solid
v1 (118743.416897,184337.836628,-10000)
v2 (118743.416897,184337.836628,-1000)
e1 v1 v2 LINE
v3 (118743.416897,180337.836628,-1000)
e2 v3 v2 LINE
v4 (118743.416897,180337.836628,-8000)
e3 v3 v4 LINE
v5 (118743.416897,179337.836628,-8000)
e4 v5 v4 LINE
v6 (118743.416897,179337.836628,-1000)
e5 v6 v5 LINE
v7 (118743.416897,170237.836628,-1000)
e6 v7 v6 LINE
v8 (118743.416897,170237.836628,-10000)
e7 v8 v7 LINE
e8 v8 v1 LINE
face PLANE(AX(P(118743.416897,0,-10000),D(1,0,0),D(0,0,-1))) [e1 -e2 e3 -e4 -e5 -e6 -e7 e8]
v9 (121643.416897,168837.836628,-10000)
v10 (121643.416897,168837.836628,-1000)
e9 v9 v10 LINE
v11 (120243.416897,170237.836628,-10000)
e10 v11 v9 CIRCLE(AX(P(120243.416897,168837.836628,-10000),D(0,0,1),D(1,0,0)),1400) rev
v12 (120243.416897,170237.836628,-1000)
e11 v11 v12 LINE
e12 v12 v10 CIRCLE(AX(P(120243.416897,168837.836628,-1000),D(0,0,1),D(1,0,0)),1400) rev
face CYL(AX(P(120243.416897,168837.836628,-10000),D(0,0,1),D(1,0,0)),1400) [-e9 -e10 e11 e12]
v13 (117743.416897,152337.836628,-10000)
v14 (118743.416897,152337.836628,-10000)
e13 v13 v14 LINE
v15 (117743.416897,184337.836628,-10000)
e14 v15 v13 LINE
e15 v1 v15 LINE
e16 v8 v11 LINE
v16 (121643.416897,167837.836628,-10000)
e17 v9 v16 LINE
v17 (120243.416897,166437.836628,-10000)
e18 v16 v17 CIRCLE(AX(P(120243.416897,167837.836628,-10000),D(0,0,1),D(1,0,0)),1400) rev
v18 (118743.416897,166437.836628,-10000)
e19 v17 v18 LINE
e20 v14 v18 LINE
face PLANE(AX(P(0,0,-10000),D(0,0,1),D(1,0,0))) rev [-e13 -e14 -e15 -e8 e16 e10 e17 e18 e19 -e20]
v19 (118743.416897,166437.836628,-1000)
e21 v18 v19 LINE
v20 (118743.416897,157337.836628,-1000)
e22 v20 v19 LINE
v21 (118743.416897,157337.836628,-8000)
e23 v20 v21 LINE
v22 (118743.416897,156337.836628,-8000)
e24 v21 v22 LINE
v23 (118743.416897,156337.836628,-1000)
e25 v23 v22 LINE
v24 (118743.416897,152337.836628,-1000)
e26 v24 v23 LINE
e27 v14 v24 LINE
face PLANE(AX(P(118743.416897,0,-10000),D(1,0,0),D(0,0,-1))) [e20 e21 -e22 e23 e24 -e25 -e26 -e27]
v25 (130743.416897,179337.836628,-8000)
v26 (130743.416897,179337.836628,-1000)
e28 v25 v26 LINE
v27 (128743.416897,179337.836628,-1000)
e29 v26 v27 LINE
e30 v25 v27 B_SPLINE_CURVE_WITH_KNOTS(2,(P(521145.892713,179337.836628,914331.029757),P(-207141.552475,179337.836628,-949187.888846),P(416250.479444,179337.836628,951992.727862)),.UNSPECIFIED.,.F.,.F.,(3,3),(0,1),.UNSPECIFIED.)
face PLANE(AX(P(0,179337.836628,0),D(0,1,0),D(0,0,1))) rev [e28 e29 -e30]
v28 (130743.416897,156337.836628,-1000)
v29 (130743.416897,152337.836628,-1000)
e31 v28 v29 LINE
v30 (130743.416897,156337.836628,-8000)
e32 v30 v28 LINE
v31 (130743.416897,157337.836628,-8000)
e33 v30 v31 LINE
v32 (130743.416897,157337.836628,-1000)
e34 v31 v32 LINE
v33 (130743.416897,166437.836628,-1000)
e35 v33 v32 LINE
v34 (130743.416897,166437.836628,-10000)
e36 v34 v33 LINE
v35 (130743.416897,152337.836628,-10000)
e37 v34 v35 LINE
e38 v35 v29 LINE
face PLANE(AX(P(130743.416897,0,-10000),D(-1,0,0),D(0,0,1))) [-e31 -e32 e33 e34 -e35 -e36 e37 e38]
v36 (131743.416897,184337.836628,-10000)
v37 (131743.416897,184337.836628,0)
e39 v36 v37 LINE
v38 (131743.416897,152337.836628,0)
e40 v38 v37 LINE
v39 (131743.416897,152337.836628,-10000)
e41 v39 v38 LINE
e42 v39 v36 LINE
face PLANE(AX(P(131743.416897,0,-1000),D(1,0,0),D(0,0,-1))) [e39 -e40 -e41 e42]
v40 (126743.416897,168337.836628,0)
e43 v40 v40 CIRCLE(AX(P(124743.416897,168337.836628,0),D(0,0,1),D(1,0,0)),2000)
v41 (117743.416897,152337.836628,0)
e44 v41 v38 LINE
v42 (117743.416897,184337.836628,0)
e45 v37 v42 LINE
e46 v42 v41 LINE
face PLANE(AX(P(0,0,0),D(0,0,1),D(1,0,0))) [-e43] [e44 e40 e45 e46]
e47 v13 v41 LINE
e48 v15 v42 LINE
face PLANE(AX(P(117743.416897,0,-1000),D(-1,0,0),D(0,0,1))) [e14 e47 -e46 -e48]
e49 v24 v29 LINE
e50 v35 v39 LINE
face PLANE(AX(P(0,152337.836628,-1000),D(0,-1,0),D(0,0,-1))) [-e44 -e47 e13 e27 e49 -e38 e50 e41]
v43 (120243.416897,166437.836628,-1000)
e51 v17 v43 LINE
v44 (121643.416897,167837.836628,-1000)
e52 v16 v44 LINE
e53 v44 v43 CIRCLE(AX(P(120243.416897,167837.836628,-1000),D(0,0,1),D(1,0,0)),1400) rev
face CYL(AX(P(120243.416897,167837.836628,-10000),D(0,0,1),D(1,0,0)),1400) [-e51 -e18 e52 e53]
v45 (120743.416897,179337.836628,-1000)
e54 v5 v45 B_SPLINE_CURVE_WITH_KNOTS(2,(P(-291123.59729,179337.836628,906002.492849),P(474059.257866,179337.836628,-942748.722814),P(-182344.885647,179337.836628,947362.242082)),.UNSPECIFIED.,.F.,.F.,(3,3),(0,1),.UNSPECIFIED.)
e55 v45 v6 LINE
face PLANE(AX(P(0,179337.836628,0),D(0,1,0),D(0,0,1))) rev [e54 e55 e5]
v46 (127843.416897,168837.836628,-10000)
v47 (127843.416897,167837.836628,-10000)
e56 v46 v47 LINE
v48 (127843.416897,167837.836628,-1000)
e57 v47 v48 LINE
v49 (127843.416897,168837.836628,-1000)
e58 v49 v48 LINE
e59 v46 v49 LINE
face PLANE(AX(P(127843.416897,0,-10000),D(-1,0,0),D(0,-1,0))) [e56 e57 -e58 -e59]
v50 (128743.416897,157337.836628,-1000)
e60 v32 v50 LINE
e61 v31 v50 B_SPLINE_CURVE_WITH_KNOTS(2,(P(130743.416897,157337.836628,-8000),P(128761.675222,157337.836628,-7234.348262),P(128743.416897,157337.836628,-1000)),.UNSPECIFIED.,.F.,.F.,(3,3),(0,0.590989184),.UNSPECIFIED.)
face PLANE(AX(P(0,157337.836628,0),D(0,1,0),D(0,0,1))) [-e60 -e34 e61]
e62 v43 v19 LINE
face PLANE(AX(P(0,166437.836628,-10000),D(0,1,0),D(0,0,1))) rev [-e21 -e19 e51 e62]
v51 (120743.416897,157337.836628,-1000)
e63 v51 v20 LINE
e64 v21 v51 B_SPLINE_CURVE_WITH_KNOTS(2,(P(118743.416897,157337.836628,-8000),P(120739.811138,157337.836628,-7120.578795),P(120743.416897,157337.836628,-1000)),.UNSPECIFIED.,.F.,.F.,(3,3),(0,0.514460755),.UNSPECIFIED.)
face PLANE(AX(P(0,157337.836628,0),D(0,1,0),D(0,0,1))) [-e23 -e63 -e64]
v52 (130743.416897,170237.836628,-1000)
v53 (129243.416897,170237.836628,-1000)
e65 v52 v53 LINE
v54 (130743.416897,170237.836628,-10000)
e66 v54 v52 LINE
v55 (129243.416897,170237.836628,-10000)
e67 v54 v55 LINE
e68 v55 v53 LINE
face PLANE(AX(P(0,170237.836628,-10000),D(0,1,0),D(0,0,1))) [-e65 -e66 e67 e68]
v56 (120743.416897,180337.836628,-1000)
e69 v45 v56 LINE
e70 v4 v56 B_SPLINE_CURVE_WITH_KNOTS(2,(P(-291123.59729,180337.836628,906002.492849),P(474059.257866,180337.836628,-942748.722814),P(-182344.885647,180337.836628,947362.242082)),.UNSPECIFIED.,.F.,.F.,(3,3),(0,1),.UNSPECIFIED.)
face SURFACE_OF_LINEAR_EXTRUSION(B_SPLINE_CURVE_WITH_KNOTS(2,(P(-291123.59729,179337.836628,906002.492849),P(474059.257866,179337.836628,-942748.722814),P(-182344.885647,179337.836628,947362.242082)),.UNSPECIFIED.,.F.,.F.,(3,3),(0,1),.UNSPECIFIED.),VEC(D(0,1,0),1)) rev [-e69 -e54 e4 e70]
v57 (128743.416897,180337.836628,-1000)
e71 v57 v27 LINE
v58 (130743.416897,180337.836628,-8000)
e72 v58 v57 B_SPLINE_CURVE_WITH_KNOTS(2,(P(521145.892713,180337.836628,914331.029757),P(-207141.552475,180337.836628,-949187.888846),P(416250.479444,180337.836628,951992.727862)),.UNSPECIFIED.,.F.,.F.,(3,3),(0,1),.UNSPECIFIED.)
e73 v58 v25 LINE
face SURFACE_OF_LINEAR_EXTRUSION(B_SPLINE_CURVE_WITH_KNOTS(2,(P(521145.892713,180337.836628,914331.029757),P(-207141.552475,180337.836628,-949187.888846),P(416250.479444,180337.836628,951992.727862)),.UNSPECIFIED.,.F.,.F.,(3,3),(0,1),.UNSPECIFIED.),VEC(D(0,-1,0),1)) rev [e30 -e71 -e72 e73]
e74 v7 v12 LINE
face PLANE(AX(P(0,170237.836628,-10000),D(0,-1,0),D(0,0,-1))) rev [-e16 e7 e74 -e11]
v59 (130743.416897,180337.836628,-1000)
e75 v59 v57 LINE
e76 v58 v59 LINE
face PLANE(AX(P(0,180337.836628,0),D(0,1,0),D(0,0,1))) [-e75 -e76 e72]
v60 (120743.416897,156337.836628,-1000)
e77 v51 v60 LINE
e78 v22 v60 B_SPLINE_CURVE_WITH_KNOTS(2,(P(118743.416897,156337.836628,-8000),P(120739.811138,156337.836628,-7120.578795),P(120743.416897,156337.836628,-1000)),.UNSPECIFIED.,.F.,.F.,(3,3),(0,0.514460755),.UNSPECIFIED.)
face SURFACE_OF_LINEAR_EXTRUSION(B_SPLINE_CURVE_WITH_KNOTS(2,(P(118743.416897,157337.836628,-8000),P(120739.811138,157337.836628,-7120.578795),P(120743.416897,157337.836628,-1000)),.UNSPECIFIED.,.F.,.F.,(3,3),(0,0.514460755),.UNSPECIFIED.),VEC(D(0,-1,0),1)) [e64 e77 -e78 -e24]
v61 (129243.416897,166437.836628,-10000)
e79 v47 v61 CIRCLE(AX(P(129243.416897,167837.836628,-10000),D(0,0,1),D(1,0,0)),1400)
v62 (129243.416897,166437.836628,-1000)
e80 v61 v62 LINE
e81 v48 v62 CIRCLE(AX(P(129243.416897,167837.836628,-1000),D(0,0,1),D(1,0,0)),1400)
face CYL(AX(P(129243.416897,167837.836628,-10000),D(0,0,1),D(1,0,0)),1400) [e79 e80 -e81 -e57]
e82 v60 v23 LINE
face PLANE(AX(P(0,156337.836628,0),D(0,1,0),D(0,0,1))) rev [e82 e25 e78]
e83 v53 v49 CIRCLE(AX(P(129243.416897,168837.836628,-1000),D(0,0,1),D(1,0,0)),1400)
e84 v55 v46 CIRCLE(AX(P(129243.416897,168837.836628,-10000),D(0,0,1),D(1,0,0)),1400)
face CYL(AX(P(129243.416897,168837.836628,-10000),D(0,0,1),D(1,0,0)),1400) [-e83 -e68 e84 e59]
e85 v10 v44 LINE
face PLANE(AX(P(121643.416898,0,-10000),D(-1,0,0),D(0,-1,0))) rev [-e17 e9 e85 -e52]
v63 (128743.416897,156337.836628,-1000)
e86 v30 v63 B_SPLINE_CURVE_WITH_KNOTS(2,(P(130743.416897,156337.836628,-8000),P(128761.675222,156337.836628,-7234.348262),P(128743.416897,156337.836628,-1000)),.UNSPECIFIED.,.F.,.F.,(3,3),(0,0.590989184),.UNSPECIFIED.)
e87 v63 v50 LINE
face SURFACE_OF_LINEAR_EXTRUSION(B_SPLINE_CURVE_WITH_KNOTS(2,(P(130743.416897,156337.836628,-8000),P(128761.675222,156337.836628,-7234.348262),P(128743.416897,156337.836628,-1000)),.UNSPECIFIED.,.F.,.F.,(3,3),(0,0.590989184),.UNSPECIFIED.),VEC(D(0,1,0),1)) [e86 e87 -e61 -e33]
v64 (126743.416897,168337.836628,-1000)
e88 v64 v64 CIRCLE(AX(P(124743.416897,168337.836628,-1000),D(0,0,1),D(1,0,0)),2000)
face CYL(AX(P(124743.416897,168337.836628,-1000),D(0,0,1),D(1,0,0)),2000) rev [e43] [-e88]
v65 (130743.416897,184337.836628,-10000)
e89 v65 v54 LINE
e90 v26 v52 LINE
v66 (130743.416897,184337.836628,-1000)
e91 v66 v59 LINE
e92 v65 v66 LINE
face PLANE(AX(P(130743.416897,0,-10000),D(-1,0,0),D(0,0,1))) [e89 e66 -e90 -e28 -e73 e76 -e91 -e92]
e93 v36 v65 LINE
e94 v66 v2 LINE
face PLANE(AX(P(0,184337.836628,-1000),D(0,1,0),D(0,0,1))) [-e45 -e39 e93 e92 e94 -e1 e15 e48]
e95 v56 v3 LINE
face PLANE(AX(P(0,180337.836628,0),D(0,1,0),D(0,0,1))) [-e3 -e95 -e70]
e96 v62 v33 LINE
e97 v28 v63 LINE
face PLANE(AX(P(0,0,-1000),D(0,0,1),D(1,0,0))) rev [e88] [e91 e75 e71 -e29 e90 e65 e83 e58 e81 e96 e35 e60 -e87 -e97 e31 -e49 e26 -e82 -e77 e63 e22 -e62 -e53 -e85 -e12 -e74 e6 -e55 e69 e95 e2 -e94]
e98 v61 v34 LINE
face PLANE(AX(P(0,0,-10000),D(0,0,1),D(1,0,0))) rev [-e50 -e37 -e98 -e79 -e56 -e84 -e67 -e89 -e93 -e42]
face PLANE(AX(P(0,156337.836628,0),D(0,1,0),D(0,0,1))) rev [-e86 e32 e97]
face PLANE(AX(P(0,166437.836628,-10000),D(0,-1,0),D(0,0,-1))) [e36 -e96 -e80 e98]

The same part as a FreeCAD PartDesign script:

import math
import FreeCAD as App
import Part
import Sketcher

V = App.Vector

doc = App.newDocument("Part")
body = doc.addObject("PartDesign::Body", "Body")

# Sketch on XY plane
sketch1 = doc.addObject("Sketcher::SketchObject", "Sketch")
body.addObject(sketch1)
sketch1.AttachmentSupport = (doc.XY_Plane, [""])
sketch1.MapMode = "FlatFace"
sketch1.addGeometry([
    Part.LineSegment(V(117743.416897, 184337.836628, 0), V(117743.416897, 152337.836628, 0)),  # 0
    Part.LineSegment(V(117743.416897, 152337.836628, 0), V(131743.416897, 152337.836628, 0)),  # 1
    Part.LineSegment(V(131743.416897, 152337.836628, 0), V(131743.416897, 184337.836628, 0)),  # 2
    Part.LineSegment(V(131743.416897, 184337.836628, 0), V(117743.416897, 184337.836628, 0)),  # 3
    Part.Circle(V(124743.416897, 168337.836628, 0), V(0, 0, 1), 2000),  # 4
], False)
sketch1.addConstraint([
    Sketcher.Constraint("Coincident", 0, 2, 1, 1),
    Sketcher.Constraint("Coincident", 1, 2, 2, 1),
    Sketcher.Constraint("Coincident", 2, 2, 3, 1),
    Sketcher.Constraint("Coincident", 3, 2, 0, 1),
    Sketcher.Constraint("Vertical", 0),
    Sketcher.Constraint("Horizontal", 1),
    Sketcher.Constraint("Vertical", 2),
    Sketcher.Constraint("Horizontal", 3),
    Sketcher.Constraint("Diameter", 4, 4000.0),
    Sketcher.Constraint("DistanceX", 1, 1, 1, 2, 14000.0),
    Sketcher.Constraint("DistanceY", 0, 2, 0, 1, 32000.0),
    Sketcher.Constraint("DistanceX", 0, 2, 4, 3, 7000.0),
    Sketcher.Constraint("DistanceY", 0, 2, 4, 3, 16000.0),
    Sketcher.Constraint("DistanceX", -1, 1, 4, 3, 124743.416897),
    Sketcher.Constraint("DistanceY", -1, 1, 4, 3, 168337.836628),
])
pad1 = doc.addObject("PartDesign::Pad", "Pad")
body.addObject(pad1)
pad1.Profile = sketch1
pad1.Length = 1000
pad1.Reversed = True

# Sketch on XY plane
sketch2 = doc.addObject("Sketcher::SketchObject", "Sketch001")
body.addObject(sketch2)
sketch2.AttachmentSupport = (doc.XY_Plane, [""])
sketch2.MapMode = "FlatFace"
sketch2.addGeometry([
    Part.LineSegment(V(117743.416897, 152337.836628, 0), V(118743.416897, 152337.836628, 0)),  # 0
    Part.LineSegment(V(118743.416897, 152337.836628, 0), V(118743.416897, 166437.836628, 0)),  # 1
    Part.LineSegment(V(118743.416897, 166437.836628, 0), V(120243.416897, 166437.836628, 0)),  # 2
    Part.ArcOfCircle(Part.Circle(V(120243.416897, 167837.836628, 0), V(0, 0, 1), 1400), math.radians(-90), math.radians(0)),  # 3
    Part.LineSegment(V(121643.416897, 167837.836628, 0), V(121643.416897, 168837.836628, 0)),  # 4
    Part.ArcOfCircle(Part.Circle(V(120243.416897, 168837.836628, 0), V(0, 0, 1), 1400), math.radians(0), math.radians(90)),  # 5
    Part.LineSegment(V(120243.416897, 170237.836628, 0), V(118743.416897, 170237.836628, 0)),  # 6
    Part.LineSegment(V(118743.416897, 170237.836628, 0), V(118743.416897, 184337.836628, 0)),  # 7
    Part.LineSegment(V(118743.416897, 184337.836628, 0), V(117743.416897, 184337.836628, 0)),  # 8
    Part.LineSegment(V(117743.416897, 184337.836628, 0), V(117743.416897, 152337.836628, 0)),  # 9
    Part.LineSegment(V(130743.416897, 152337.836628, 0), V(131743.416897, 152337.836628, 0)),  # 10
    Part.LineSegment(V(131743.416897, 152337.836628, 0), V(131743.416897, 184337.836628, 0)),  # 11
    Part.LineSegment(V(131743.416897, 184337.836628, 0), V(130743.416897, 184337.836628, 0)),  # 12
    Part.LineSegment(V(130743.416897, 184337.836628, 0), V(130743.416897, 170237.836628, 0)),  # 13
    Part.LineSegment(V(130743.416897, 170237.836628, 0), V(129243.416897, 170237.836628, 0)),  # 14
    Part.ArcOfCircle(Part.Circle(V(129243.416897, 168837.836628, 0), V(0, 0, 1), 1400), math.radians(90), math.radians(180)),  # 15
    Part.LineSegment(V(127843.416897, 168837.836628, 0), V(127843.416897, 167837.836628, 0)),  # 16
    Part.ArcOfCircle(Part.Circle(V(129243.416897, 167837.836628, 0), V(0, 0, 1), 1400), math.radians(-180), math.radians(-90)),  # 17
    Part.LineSegment(V(129243.416897, 166437.836628, 0), V(130743.416897, 166437.836628, 0)),  # 18
    Part.LineSegment(V(130743.416897, 166437.836628, 0), V(130743.416897, 152337.836628, 0)),  # 19
], False)
sketch2.addConstraint([
    Sketcher.Constraint("Coincident", 0, 2, 1, 1),
    Sketcher.Constraint("Coincident", 1, 2, 2, 1),
    Sketcher.Constraint("Coincident", 2, 2, 3, 1),
    Sketcher.Constraint("Coincident", 3, 2, 4, 1),
    Sketcher.Constraint("Coincident", 4, 2, 5, 1),
    Sketcher.Constraint("Coincident", 5, 2, 6, 1),
    Sketcher.Constraint("Coincident", 6, 2, 7, 1),
    Sketcher.Constraint("Coincident", 7, 2, 8, 1),
    Sketcher.Constraint("Coincident", 8, 2, 9, 1),
    Sketcher.Constraint("Coincident", 9, 2, 0, 1),
    Sketcher.Constraint("Coincident", 10, 2, 11, 1),
    Sketcher.Constraint("Coincident", 11, 2, 12, 1),
    Sketcher.Constraint("Coincident", 12, 2, 13, 1),
    Sketcher.Constraint("Coincident", 13, 2, 14, 1),
    Sketcher.Constraint("Coincident", 14, 2, 15, 1),
    Sketcher.Constraint("Coincident", 15, 2, 16, 1),
    Sketcher.Constraint("Coincident", 16, 2, 17, 1),
    Sketcher.Constraint("Coincident", 17, 2, 18, 1),
    Sketcher.Constraint("Coincident", 18, 2, 19, 1),
    Sketcher.Constraint("Coincident", 19, 2, 10, 1),
    Sketcher.Constraint("Horizontal", 0),
    Sketcher.Constraint("Vertical", 1),
    Sketcher.Constraint("Horizontal", 2),
    Sketcher.Constraint("Vertical", 4),
    Sketcher.Constraint("Horizontal", 6),
    Sketcher.Constraint("Vertical", 7),
    Sketcher.Constraint("Horizontal", 8),
    Sketcher.Constraint("Vertical", 9),
    Sketcher.Constraint("Horizontal", 10),
    Sketcher.Constraint("Vertical", 11),
    Sketcher.Constraint("Horizontal", 12),
    Sketcher.Constraint("Vertical", 13),
    Sketcher.Constraint("Horizontal", 14),
    Sketcher.Constraint("Vertical", 16),
    Sketcher.Constraint("Horizontal", 18),
    Sketcher.Constraint("Vertical", 19),
    Sketcher.Constraint("Equal", 3, 5),
    Sketcher.Constraint("Equal", 5, 15),
    Sketcher.Constraint("Equal", 15, 17),
    Sketcher.Constraint("Horizontal", 5, 3, 15, 3),
    Sketcher.Constraint("Horizontal", 3, 3, 17, 3),
    Sketcher.Constraint("Horizontal", 15, 3, 4, 2),
    Sketcher.Constraint("Horizontal", 9, 2, 10, 2),
    Sketcher.Constraint("Horizontal", 8, 2, 11, 2),
    Sketcher.Constraint("Vertical", 5, 3, 2, 2),
    Sketcher.Constraint("Vertical", 1, 2, 6, 2),
    Sketcher.Constraint("Vertical", 17, 3, 14, 2),
    Sketcher.Constraint("Vertical", 13, 2, 18, 2),
    Sketcher.Constraint("Equal", 2, 6),
    Sketcher.Constraint("Equal", 8, 10),
    Sketcher.Constraint("Equal", 6, 14),
    Sketcher.Constraint("Equal", 14, 18),
    Sketcher.Constraint("Equal", 12, 4),
    Sketcher.Constraint("Equal", 1, 7),
    Sketcher.Constraint("Equal", 4, 16),
    Sketcher.Constraint("Radius", 3, 1400.0),
    Sketcher.Constraint("DistanceX", 0, 1, 0, 2, 1000.0),
    Sketcher.Constraint("DistanceX", 2, 1, 2, 2, 1500.0),
    Sketcher.Constraint("DistanceY", 1, 1, 1, 2, 14100.0),
    Sketcher.Constraint("DistanceY", 9, 2, 9, 1, 32000.0),
    Sketcher.Constraint("DistanceX", 5, 3, 15, 3, 9000.0),
    Sketcher.Constraint("DistanceY", 16, 2, 15, 3, 1000.0),
    Sketcher.Constraint("DistanceX", -1, 1, 3, 3, 120243.416897),
    Sketcher.Constraint("DistanceY", -1, 1, 3, 3, 167837.836628),
])
pad2 = doc.addObject("PartDesign::Pad", "Pad001")
body.addObject(pad2)
pad2.Profile = sketch2
pad2.Length = 10000
pad2.Reversed = True

# Sketch on XZ plane
sketch3 = doc.addObject("Sketcher::SketchObject", "Sketch002")
body.addObject(sketch3)
sketch3.AttachmentSupport = (doc.XZ_Plane, [""])
sketch3.MapMode = "FlatFace"
sketch3.AttachmentOffset = App.Placement(V(0, 0, -156837.836628), App.Rotation())
sketch3.addGeometry([
    Part.LineSegment(V(130743.416897, -1000, 0), V(130743.416897, -8000, 0)),  # 0
    Part.BSplineCurve([V(130743.416897, -8000, 0), V(128761.675222, -7234.348262, 0), V(128743.416897, -1000, 0)], [3, 3], [0, 0.590989184], False, 2, [1, 1, 1], False),  # 1
    Part.LineSegment(V(128743.416897, -1000, 0), V(130743.416897, -1000, 0)),  # 2
    Part.BSplineCurve([V(118743.416897, -8000, 0), V(120739.811138, -7120.578795, 0), V(120743.416897, -1000, 0)], [3, 3], [0, 0.514460755], False, 2, [1, 1, 1], False),  # 3
    Part.LineSegment(V(118743.416897, -8000, 0), V(118743.416897, -1000, 0)),  # 4
    Part.LineSegment(V(118743.416897, -1000, 0), V(120743.416897, -1000, 0)),  # 5
], False)
sketch3.addConstraint([
    Sketcher.Constraint("Block", 1),
    Sketcher.Constraint("Block", 3),
    Sketcher.Constraint("Coincident", 0, 2, 1, 1),
    Sketcher.Constraint("Coincident", 1, 2, 2, 1),
    Sketcher.Constraint("Coincident", 2, 2, 0, 1),
    Sketcher.Constraint("Coincident", 3, 1, 4, 1),
    Sketcher.Constraint("Coincident", 4, 2, 5, 1),
    Sketcher.Constraint("Coincident", 5, 2, 3, 2),
    Sketcher.Constraint("Vertical", 0),
    Sketcher.Constraint("Horizontal", 2),
    Sketcher.Constraint("Vertical", 4),
    Sketcher.Constraint("Horizontal", 5),
])
pad3 = doc.addObject("PartDesign::Pad", "Pad002")
body.addObject(pad3)
pad3.Profile = sketch3
pad3.Type = "TwoLengths"
pad3.Length = 500
pad3.Length2 = 500
pad3.Reversed = True

# Sketch on XZ plane
sketch4 = doc.addObject("Sketcher::SketchObject", "Sketch003")
body.addObject(sketch4)
sketch4.AttachmentSupport = (doc.XZ_Plane, [""])
sketch4.MapMode = "FlatFace"
sketch4.AttachmentOffset = App.Placement(V(0, 0, -179837.836628), App.Rotation())
sketch4.addGeometry([
    Part.LineSegment(V(118743.416897, -8000, 0), V(118743.416897, -1000, 0)),  # 0
    Part.LineSegment(V(118743.416897, -1000, 0), V(120743.416897, -1000, 0)),  # 1
    Part.BSplineCurve([V(118743.416897, -8000, 0), V(120739.811138, -7120.578795, 0), V(120743.416897, -1000, 0)], [3, 3], [0, 1], False, 2, [1, 1, 1], False),  # 2
    Part.BSplineCurve([V(130743.416897, -8000, 0), V(128761.675222, -7234.348262, 0), V(128743.416897, -1000, 0)], [3, 3], [0, 1], False, 2, [1, 1, 1], False),  # 3
    Part.LineSegment(V(128743.416897, -1000, 0), V(130743.416897, -1000, 0)),  # 4
    Part.LineSegment(V(130743.416897, -1000, 0), V(130743.416897, -8000, 0)),  # 5
], False)
sketch4.addConstraint([
    Sketcher.Constraint("Block", 2),
    Sketcher.Constraint("Block", 3),
    Sketcher.Constraint("Coincident", 0, 2, 1, 1),
    Sketcher.Constraint("Coincident", 1, 2, 2, 2),
    Sketcher.Constraint("Coincident", 2, 1, 0, 1),
    Sketcher.Constraint("Coincident", 3, 2, 4, 1),
    Sketcher.Constraint("Coincident", 4, 2, 5, 1),
    Sketcher.Constraint("Coincident", 5, 2, 3, 1),
    Sketcher.Constraint("Vertical", 0),
    Sketcher.Constraint("Horizontal", 1),
    Sketcher.Constraint("Horizontal", 4),
    Sketcher.Constraint("Vertical", 5),
])
pad4 = doc.addObject("PartDesign::Pad", "Pad003")
body.addObject(pad4)
pad4.Profile = sketch4
pad4.Type = "TwoLengths"
pad4.Length = 500
pad4.Length2 = 500
pad4.Reversed = True

doc.recompute()
